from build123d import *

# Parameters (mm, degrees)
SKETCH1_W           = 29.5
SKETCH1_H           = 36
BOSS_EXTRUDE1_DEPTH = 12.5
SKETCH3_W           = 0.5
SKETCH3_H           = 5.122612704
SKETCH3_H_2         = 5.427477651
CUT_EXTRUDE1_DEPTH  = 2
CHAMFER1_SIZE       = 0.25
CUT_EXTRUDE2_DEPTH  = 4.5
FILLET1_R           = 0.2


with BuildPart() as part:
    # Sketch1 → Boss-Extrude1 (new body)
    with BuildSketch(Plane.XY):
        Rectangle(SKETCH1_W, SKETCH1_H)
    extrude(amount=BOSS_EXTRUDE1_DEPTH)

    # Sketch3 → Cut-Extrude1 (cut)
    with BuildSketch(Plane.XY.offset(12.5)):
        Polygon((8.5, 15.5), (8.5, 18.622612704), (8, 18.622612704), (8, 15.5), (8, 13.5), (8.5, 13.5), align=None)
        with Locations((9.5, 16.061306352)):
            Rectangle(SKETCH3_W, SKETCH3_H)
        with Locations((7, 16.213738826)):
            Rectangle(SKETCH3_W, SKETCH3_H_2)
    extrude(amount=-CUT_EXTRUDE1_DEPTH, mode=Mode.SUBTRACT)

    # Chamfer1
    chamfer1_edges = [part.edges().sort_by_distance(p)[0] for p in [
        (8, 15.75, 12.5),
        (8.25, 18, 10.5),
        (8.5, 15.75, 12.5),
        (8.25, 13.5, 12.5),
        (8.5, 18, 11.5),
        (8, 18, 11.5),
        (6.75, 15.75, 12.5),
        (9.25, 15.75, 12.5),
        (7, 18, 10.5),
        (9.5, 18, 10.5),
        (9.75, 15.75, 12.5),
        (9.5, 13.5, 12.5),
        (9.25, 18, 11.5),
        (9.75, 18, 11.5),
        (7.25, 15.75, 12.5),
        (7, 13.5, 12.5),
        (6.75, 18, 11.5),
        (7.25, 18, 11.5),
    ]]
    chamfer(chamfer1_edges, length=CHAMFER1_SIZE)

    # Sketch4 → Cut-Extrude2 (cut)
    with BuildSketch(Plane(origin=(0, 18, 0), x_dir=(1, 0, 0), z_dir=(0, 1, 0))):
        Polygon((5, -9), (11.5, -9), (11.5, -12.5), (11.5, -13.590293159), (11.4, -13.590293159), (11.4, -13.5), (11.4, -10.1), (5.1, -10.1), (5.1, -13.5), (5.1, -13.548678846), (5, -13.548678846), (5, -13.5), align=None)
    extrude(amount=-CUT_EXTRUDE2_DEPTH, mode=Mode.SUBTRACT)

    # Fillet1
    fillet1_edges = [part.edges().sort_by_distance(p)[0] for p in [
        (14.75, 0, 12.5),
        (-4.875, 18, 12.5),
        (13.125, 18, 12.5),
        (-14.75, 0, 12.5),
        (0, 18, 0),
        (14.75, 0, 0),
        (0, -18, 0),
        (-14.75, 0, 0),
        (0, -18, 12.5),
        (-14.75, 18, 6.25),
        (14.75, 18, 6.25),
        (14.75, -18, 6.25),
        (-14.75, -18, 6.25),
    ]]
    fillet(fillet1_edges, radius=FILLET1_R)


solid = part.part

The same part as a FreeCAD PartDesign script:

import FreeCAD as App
import Part
import Sketcher

V = App.Vector
Q = App.Units.Quantity


def edges_at(feature, points):
    """Names of the edges that pass closest to the given points."""
    edges = feature.Shape.Edges
    near = lambda p: min(range(len(edges)), key=lambda i: edges[i].distToShape(Part.Vertex(*p))[0])
    return sorted({f"Edge{near(p) + 1}" for p in points})

doc = App.newDocument("Part")
body = doc.addObject("PartDesign::Body", "Body")

sketch1 = doc.addObject("Sketcher::SketchObject", "Sketch")
body.addObject(sketch1)
sketch1.AttachmentSupport = (doc.XY_Plane, [""])
sketch1.MapMode = "FlatFace"
sketch1.addGeometry([
    Part.LineSegment(V(-15, 18, 0), V(-15, -18, 0)),
    Part.LineSegment(V(-15, -18, 0), V(15, -18, 0)),
    Part.LineSegment(V(15, -18, 0), V(15, 18, 0)),
    Part.LineSegment(V(15, 18, 0), V(-15, 18, 0)),
], False)
sketch1.addConstraint([
    Sketcher.Constraint("Coincident", 0, 2, 1, 1),
    Sketcher.Constraint("Coincident", 1, 2, 2, 1),
    Sketcher.Constraint("Coincident", 2, 2, 3, 1),
    Sketcher.Constraint("Coincident", 3, 2, 0, 1),
    Sketcher.Constraint("Vertical", 0),
    Sketcher.Constraint("Horizontal", 1),
    Sketcher.Constraint("Vertical", 2),
    Sketcher.Constraint("Horizontal", 3),
    Sketcher.Constraint("Symmetric", 0, 2, 2, 2, -1, 1),
    Sketcher.Constraint("DistanceY", 0, 2, 0, 1, Q("36 mm")),
    Sketcher.Constraint("DistanceX", 1, 1, 1, 2, Q("29.5 mm")),
])
pad1 = doc.addObject("PartDesign::Pad", "Pad")
body.addObject(pad1)
pad1.Profile = sketch1
pad1.Length = 12.5

sketch2 = doc.addObject("Sketcher::SketchObject", "Sketch001")
body.addObject(sketch2)
sketch2.AttachmentSupport = (doc.XY_Plane, [""])
sketch2.MapMode = "FlatFace"
sketch2.AttachmentOffset = App.Placement(V(0, 0, 12.5), App.Rotation())
sketch2.addGeometry([
    Part.LineSegment(V(8.5, 18.6, 0), V(8, 18.6, 0)),
    Part.LineSegment(V(8, 18.6, 0), V(8, 13.5, 0)),
    Part.LineSegment(V(8, 13.5, 0), V(8.5, 13.5, 0)),
    Part.LineSegment(V(8.5, 13.5, 0), V(8.5, 18.6, 0)),
    Part.LineSegment(V(9.2, 18.6, 0), V(9.2, 13.5, 0)),
    Part.LineSegment(V(9.2, 13.5, 0), V(9.8, 13.5, 0)),
    Part.LineSegment(V(9.8, 13.5, 0), V(9.8, 18.6, 0)),
    Part.LineSegment(V(9.8, 18.6, 0), V(9.2, 18.6, 0)),
    Part.LineSegment(V(6.8, 18.9, 0), V(6.8, 13.5, 0)),
    Part.LineSegment(V(6.8, 13.5, 0), V(7.2, 13.5, 0)),
    Part.LineSegment(V(7.2, 13.5, 0), V(7.2, 18.9, 0)),
    Part.LineSegment(V(7.2, 18.9, 0), V(6.8, 18.9, 0)),
], False)
sketch2.addConstraint([
    Sketcher.Constraint("Coincident", 0, 2, 1, 1),
    Sketcher.Constraint("Coincident", 1, 2, 2, 1),
    Sketcher.Constraint("Coincident", 2, 2, 3, 1),
    Sketcher.Constraint("Coincident", 3, 2, 0, 1),
    Sketcher.Constraint("Coincident", 4, 2, 5, 1),
    Sketcher.Constraint("Coincident", 5, 2, 6, 1),
    Sketcher.Constraint("Coincident", 6, 2, 7, 1),
    Sketcher.Constraint("Coincident", 7, 2, 4, 1),
    Sketcher.Constraint("Coincident", 8, 2, 9, 1),
    Sketcher.Constraint("Coincident", 9, 2, 10, 1),
    Sketcher.Constraint("Coincident", 10, 2, 11, 1),
    Sketcher.Constraint("Coincident", 11, 2, 8, 1),
    Sketcher.Constraint("Horizontal", 0),
    Sketcher.Constraint("Vertical", 1),
    Sketcher.Constraint("Horizontal", 2),
    Sketcher.Constraint("Vertical", 3),
    Sketcher.Constraint("Vertical", 4),
    Sketcher.Constraint("Horizontal", 5),
    Sketcher.Constraint("Vertical", 6),
    Sketcher.Constraint("Horizontal", 7),
    Sketcher.Constraint("Vertical", 8),
    Sketcher.Constraint("Horizontal", 9),
    Sketcher.Constraint("Vertical", 10),
    Sketcher.Constraint("Horizontal", 11),
    Sketcher.Constraint("Horizontal", 2, 2, 4, 2),
    Sketcher.Constraint("Horizontal", 3, 2, 6, 2),
    Sketcher.Constraint("Horizontal", 5, 2, 8, 2),
    Sketcher.Constraint("Equal", 2, 5),
    Sketcher.Constraint("Equal", 7, 9),
    Sketcher.Constraint("DistanceX", 0, 2, 0, 1, Q("0.5 mm")),
    Sketcher.Constraint("DistanceX", -1, 1, 0, 2, Q("8 mm")),
    Sketcher.Constraint("DistanceX", 8, 2, 5, 2, Q("3 mm")),
    Sketcher.Constraint("DistanceY", -1, 1, 1, 2, Q("13.5 mm")),
    Sketcher.Constraint("DistanceX", -1, 1, 4, 2, Q("9.25 mm")),
    Sketcher.Constraint("DistanceY", 1, 2, 1, 1, Q("5.122613 mm")),
    Sketcher.Constraint("DistanceY", 8, 2, 8, 1, Q("5.427478 mm")),
])
pocket1 = doc.addObject("PartDesign::Pocket", "Pocket")
body.addObject(pocket1)
pocket1.Profile = sketch2
pocket1.Length = 2
doc.recompute()

chamfer = doc.addObject("PartDesign::Chamfer", "Chamfer")
body.addObject(chamfer)
chamfer.Base = (pocket1, edges_at(pocket1, [
    (8, 15.75, 12.5),
    (8.25, 18, 10.5),
    (8.5, 15.75, 12.5),
    (8.25, 13.5, 12.5),
    (8.5, 18, 11.5),
    (8, 18, 11.5),
    (6.75, 15.75, 12.5),
    (9.25, 15.75, 12.5),
    (7, 18, 10.5),
    (9.5, 18, 10.5),
    (9.75, 15.75, 12.5),
    (9.5, 13.5, 12.5),
    (9.25, 18, 11.5),
    (9.75, 18, 11.5),
    (7.25, 15.75, 12.5),
    (7, 13.5, 12.5),
    (6.75, 18, 11.5),
    (7.25, 18, 11.5),
]))
chamfer.Size = 0.25

sketch3 = doc.addObject("Sketcher::SketchObject", "Sketch002")
body.addObject(sketch3)
sketch3.AttachmentSupport = (doc.XZ_Plane, [""])
sketch3.MapMode = "FlatFace"
sketch3.AttachmentOffset = App.Placement(V(0, 0, -18), App.Rotation())
sketch3.addGeometry([
    Part.LineSegment(V(11.5, 9, 0), V(5, 9, 0)),
    Part.LineSegment(V(5, 9, 0), V(5, 13.55, 0)),
    Part.LineSegment(V(5, 13.55, 0), V(5.1, 13.55, 0)),
    Part.LineSegment(V(5.1, 13.55, 0), V(5.1, 10.1, 0)),
    Part.LineSegment(V(5.1, 10.1, 0), V(11.4, 10.1, 0)),
    Part.LineSegment(V(11.4, 10.1, 0), V(11.4, 13.59, 0)),
    Part.LineSegment(V(11.4, 13.59, 0), V(11.5, 13.59, 0)),
    Part.LineSegment(V(11.5, 13.59, 0), V(11.5, 9, 0)),
], False)
sketch3.addConstraint([
    Sketcher.Constraint("Coincident", 0, 2, 1, 1),
    Sketcher.Constraint("Coincident", 1, 2, 2, 1),
    Sketcher.Constraint("Coincident", 2, 2, 3, 1),
    Sketcher.Constraint("Coincident", 3, 2, 4, 1),
    Sketcher.Constraint("Coincident", 4, 2, 5, 1),
    Sketcher.Constraint("Coincident", 5, 2, 6, 1),
    Sketcher.Constraint("Coincident", 6, 2, 7, 1),
    Sketcher.Constraint("Coincident", 7, 2, 0, 1),
    Sketcher.Constraint("Horizontal", 0),
    Sketcher.Constraint("Vertical", 1),
    Sketcher.Constraint("Horizontal", 2),
    Sketcher.Constraint("Vertical", 3),
    Sketcher.Constraint("Horizontal", 4),
    Sketcher.Constraint("Vertical", 5),
    Sketcher.Constraint("Horizontal", 6),
    Sketcher.Constraint("Vertical", 7),
    Sketcher.Constraint("Equal", 2, 6),
    Sketcher.Constraint("DistanceX", 0, 2, 0, 1, Q("6.5 mm")),
    Sketcher.Constraint("DistanceX", 2, 1, 2, 2, Q("0.1 mm")),
    Sketcher.Constraint("DistanceX", -1, 1, 0, 2, Q("5 mm")),
    Sketcher.Constraint("DistanceY", -1, 1, 0, 2, Q("9 mm")),
    Sketcher.Constraint("DistanceY", -1, 1, 3, 2, Q("10.1 mm")),
    Sketcher.Constraint("DistanceY", 1, 1, 1, 2, Q("4.548679 mm")),
    Sketcher.Constraint("DistanceY", 5, 1, 5, 2, Q("3.490293 mm")),
])
pocket2 = doc.addObject("PartDesign::Pocket", "Pocket001")
body.addObject(pocket2)
pocket2.Profile = sketch3
pocket2.Length = 4.5
pocket2.Reversed = True
doc.recompute()

fillet = doc.addObject("PartDesign::Fillet", "Fillet")
body.addObject(fillet)
fillet.Base = (pocket2, edges_at(pocket2, [
    (14.75, 0, 12.5),
    (-4.875, 18, 12.5),
    (13.125, 18, 12.5),
    (-14.75, 0, 12.5),
    (0, 18, 0),
    (14.75, 0, 0),
    (0, -18, 0),
    (-14.75, 0, 0),
    (0, -18, 12.5),
    (-14.75, 18, 6.25),
    (14.75, 18, 6.25),
    (14.75, -18, 6.25),
    (-14.75, -18, 6.25),
]))
fillet.Radius = 0.2

doc.recompute()
